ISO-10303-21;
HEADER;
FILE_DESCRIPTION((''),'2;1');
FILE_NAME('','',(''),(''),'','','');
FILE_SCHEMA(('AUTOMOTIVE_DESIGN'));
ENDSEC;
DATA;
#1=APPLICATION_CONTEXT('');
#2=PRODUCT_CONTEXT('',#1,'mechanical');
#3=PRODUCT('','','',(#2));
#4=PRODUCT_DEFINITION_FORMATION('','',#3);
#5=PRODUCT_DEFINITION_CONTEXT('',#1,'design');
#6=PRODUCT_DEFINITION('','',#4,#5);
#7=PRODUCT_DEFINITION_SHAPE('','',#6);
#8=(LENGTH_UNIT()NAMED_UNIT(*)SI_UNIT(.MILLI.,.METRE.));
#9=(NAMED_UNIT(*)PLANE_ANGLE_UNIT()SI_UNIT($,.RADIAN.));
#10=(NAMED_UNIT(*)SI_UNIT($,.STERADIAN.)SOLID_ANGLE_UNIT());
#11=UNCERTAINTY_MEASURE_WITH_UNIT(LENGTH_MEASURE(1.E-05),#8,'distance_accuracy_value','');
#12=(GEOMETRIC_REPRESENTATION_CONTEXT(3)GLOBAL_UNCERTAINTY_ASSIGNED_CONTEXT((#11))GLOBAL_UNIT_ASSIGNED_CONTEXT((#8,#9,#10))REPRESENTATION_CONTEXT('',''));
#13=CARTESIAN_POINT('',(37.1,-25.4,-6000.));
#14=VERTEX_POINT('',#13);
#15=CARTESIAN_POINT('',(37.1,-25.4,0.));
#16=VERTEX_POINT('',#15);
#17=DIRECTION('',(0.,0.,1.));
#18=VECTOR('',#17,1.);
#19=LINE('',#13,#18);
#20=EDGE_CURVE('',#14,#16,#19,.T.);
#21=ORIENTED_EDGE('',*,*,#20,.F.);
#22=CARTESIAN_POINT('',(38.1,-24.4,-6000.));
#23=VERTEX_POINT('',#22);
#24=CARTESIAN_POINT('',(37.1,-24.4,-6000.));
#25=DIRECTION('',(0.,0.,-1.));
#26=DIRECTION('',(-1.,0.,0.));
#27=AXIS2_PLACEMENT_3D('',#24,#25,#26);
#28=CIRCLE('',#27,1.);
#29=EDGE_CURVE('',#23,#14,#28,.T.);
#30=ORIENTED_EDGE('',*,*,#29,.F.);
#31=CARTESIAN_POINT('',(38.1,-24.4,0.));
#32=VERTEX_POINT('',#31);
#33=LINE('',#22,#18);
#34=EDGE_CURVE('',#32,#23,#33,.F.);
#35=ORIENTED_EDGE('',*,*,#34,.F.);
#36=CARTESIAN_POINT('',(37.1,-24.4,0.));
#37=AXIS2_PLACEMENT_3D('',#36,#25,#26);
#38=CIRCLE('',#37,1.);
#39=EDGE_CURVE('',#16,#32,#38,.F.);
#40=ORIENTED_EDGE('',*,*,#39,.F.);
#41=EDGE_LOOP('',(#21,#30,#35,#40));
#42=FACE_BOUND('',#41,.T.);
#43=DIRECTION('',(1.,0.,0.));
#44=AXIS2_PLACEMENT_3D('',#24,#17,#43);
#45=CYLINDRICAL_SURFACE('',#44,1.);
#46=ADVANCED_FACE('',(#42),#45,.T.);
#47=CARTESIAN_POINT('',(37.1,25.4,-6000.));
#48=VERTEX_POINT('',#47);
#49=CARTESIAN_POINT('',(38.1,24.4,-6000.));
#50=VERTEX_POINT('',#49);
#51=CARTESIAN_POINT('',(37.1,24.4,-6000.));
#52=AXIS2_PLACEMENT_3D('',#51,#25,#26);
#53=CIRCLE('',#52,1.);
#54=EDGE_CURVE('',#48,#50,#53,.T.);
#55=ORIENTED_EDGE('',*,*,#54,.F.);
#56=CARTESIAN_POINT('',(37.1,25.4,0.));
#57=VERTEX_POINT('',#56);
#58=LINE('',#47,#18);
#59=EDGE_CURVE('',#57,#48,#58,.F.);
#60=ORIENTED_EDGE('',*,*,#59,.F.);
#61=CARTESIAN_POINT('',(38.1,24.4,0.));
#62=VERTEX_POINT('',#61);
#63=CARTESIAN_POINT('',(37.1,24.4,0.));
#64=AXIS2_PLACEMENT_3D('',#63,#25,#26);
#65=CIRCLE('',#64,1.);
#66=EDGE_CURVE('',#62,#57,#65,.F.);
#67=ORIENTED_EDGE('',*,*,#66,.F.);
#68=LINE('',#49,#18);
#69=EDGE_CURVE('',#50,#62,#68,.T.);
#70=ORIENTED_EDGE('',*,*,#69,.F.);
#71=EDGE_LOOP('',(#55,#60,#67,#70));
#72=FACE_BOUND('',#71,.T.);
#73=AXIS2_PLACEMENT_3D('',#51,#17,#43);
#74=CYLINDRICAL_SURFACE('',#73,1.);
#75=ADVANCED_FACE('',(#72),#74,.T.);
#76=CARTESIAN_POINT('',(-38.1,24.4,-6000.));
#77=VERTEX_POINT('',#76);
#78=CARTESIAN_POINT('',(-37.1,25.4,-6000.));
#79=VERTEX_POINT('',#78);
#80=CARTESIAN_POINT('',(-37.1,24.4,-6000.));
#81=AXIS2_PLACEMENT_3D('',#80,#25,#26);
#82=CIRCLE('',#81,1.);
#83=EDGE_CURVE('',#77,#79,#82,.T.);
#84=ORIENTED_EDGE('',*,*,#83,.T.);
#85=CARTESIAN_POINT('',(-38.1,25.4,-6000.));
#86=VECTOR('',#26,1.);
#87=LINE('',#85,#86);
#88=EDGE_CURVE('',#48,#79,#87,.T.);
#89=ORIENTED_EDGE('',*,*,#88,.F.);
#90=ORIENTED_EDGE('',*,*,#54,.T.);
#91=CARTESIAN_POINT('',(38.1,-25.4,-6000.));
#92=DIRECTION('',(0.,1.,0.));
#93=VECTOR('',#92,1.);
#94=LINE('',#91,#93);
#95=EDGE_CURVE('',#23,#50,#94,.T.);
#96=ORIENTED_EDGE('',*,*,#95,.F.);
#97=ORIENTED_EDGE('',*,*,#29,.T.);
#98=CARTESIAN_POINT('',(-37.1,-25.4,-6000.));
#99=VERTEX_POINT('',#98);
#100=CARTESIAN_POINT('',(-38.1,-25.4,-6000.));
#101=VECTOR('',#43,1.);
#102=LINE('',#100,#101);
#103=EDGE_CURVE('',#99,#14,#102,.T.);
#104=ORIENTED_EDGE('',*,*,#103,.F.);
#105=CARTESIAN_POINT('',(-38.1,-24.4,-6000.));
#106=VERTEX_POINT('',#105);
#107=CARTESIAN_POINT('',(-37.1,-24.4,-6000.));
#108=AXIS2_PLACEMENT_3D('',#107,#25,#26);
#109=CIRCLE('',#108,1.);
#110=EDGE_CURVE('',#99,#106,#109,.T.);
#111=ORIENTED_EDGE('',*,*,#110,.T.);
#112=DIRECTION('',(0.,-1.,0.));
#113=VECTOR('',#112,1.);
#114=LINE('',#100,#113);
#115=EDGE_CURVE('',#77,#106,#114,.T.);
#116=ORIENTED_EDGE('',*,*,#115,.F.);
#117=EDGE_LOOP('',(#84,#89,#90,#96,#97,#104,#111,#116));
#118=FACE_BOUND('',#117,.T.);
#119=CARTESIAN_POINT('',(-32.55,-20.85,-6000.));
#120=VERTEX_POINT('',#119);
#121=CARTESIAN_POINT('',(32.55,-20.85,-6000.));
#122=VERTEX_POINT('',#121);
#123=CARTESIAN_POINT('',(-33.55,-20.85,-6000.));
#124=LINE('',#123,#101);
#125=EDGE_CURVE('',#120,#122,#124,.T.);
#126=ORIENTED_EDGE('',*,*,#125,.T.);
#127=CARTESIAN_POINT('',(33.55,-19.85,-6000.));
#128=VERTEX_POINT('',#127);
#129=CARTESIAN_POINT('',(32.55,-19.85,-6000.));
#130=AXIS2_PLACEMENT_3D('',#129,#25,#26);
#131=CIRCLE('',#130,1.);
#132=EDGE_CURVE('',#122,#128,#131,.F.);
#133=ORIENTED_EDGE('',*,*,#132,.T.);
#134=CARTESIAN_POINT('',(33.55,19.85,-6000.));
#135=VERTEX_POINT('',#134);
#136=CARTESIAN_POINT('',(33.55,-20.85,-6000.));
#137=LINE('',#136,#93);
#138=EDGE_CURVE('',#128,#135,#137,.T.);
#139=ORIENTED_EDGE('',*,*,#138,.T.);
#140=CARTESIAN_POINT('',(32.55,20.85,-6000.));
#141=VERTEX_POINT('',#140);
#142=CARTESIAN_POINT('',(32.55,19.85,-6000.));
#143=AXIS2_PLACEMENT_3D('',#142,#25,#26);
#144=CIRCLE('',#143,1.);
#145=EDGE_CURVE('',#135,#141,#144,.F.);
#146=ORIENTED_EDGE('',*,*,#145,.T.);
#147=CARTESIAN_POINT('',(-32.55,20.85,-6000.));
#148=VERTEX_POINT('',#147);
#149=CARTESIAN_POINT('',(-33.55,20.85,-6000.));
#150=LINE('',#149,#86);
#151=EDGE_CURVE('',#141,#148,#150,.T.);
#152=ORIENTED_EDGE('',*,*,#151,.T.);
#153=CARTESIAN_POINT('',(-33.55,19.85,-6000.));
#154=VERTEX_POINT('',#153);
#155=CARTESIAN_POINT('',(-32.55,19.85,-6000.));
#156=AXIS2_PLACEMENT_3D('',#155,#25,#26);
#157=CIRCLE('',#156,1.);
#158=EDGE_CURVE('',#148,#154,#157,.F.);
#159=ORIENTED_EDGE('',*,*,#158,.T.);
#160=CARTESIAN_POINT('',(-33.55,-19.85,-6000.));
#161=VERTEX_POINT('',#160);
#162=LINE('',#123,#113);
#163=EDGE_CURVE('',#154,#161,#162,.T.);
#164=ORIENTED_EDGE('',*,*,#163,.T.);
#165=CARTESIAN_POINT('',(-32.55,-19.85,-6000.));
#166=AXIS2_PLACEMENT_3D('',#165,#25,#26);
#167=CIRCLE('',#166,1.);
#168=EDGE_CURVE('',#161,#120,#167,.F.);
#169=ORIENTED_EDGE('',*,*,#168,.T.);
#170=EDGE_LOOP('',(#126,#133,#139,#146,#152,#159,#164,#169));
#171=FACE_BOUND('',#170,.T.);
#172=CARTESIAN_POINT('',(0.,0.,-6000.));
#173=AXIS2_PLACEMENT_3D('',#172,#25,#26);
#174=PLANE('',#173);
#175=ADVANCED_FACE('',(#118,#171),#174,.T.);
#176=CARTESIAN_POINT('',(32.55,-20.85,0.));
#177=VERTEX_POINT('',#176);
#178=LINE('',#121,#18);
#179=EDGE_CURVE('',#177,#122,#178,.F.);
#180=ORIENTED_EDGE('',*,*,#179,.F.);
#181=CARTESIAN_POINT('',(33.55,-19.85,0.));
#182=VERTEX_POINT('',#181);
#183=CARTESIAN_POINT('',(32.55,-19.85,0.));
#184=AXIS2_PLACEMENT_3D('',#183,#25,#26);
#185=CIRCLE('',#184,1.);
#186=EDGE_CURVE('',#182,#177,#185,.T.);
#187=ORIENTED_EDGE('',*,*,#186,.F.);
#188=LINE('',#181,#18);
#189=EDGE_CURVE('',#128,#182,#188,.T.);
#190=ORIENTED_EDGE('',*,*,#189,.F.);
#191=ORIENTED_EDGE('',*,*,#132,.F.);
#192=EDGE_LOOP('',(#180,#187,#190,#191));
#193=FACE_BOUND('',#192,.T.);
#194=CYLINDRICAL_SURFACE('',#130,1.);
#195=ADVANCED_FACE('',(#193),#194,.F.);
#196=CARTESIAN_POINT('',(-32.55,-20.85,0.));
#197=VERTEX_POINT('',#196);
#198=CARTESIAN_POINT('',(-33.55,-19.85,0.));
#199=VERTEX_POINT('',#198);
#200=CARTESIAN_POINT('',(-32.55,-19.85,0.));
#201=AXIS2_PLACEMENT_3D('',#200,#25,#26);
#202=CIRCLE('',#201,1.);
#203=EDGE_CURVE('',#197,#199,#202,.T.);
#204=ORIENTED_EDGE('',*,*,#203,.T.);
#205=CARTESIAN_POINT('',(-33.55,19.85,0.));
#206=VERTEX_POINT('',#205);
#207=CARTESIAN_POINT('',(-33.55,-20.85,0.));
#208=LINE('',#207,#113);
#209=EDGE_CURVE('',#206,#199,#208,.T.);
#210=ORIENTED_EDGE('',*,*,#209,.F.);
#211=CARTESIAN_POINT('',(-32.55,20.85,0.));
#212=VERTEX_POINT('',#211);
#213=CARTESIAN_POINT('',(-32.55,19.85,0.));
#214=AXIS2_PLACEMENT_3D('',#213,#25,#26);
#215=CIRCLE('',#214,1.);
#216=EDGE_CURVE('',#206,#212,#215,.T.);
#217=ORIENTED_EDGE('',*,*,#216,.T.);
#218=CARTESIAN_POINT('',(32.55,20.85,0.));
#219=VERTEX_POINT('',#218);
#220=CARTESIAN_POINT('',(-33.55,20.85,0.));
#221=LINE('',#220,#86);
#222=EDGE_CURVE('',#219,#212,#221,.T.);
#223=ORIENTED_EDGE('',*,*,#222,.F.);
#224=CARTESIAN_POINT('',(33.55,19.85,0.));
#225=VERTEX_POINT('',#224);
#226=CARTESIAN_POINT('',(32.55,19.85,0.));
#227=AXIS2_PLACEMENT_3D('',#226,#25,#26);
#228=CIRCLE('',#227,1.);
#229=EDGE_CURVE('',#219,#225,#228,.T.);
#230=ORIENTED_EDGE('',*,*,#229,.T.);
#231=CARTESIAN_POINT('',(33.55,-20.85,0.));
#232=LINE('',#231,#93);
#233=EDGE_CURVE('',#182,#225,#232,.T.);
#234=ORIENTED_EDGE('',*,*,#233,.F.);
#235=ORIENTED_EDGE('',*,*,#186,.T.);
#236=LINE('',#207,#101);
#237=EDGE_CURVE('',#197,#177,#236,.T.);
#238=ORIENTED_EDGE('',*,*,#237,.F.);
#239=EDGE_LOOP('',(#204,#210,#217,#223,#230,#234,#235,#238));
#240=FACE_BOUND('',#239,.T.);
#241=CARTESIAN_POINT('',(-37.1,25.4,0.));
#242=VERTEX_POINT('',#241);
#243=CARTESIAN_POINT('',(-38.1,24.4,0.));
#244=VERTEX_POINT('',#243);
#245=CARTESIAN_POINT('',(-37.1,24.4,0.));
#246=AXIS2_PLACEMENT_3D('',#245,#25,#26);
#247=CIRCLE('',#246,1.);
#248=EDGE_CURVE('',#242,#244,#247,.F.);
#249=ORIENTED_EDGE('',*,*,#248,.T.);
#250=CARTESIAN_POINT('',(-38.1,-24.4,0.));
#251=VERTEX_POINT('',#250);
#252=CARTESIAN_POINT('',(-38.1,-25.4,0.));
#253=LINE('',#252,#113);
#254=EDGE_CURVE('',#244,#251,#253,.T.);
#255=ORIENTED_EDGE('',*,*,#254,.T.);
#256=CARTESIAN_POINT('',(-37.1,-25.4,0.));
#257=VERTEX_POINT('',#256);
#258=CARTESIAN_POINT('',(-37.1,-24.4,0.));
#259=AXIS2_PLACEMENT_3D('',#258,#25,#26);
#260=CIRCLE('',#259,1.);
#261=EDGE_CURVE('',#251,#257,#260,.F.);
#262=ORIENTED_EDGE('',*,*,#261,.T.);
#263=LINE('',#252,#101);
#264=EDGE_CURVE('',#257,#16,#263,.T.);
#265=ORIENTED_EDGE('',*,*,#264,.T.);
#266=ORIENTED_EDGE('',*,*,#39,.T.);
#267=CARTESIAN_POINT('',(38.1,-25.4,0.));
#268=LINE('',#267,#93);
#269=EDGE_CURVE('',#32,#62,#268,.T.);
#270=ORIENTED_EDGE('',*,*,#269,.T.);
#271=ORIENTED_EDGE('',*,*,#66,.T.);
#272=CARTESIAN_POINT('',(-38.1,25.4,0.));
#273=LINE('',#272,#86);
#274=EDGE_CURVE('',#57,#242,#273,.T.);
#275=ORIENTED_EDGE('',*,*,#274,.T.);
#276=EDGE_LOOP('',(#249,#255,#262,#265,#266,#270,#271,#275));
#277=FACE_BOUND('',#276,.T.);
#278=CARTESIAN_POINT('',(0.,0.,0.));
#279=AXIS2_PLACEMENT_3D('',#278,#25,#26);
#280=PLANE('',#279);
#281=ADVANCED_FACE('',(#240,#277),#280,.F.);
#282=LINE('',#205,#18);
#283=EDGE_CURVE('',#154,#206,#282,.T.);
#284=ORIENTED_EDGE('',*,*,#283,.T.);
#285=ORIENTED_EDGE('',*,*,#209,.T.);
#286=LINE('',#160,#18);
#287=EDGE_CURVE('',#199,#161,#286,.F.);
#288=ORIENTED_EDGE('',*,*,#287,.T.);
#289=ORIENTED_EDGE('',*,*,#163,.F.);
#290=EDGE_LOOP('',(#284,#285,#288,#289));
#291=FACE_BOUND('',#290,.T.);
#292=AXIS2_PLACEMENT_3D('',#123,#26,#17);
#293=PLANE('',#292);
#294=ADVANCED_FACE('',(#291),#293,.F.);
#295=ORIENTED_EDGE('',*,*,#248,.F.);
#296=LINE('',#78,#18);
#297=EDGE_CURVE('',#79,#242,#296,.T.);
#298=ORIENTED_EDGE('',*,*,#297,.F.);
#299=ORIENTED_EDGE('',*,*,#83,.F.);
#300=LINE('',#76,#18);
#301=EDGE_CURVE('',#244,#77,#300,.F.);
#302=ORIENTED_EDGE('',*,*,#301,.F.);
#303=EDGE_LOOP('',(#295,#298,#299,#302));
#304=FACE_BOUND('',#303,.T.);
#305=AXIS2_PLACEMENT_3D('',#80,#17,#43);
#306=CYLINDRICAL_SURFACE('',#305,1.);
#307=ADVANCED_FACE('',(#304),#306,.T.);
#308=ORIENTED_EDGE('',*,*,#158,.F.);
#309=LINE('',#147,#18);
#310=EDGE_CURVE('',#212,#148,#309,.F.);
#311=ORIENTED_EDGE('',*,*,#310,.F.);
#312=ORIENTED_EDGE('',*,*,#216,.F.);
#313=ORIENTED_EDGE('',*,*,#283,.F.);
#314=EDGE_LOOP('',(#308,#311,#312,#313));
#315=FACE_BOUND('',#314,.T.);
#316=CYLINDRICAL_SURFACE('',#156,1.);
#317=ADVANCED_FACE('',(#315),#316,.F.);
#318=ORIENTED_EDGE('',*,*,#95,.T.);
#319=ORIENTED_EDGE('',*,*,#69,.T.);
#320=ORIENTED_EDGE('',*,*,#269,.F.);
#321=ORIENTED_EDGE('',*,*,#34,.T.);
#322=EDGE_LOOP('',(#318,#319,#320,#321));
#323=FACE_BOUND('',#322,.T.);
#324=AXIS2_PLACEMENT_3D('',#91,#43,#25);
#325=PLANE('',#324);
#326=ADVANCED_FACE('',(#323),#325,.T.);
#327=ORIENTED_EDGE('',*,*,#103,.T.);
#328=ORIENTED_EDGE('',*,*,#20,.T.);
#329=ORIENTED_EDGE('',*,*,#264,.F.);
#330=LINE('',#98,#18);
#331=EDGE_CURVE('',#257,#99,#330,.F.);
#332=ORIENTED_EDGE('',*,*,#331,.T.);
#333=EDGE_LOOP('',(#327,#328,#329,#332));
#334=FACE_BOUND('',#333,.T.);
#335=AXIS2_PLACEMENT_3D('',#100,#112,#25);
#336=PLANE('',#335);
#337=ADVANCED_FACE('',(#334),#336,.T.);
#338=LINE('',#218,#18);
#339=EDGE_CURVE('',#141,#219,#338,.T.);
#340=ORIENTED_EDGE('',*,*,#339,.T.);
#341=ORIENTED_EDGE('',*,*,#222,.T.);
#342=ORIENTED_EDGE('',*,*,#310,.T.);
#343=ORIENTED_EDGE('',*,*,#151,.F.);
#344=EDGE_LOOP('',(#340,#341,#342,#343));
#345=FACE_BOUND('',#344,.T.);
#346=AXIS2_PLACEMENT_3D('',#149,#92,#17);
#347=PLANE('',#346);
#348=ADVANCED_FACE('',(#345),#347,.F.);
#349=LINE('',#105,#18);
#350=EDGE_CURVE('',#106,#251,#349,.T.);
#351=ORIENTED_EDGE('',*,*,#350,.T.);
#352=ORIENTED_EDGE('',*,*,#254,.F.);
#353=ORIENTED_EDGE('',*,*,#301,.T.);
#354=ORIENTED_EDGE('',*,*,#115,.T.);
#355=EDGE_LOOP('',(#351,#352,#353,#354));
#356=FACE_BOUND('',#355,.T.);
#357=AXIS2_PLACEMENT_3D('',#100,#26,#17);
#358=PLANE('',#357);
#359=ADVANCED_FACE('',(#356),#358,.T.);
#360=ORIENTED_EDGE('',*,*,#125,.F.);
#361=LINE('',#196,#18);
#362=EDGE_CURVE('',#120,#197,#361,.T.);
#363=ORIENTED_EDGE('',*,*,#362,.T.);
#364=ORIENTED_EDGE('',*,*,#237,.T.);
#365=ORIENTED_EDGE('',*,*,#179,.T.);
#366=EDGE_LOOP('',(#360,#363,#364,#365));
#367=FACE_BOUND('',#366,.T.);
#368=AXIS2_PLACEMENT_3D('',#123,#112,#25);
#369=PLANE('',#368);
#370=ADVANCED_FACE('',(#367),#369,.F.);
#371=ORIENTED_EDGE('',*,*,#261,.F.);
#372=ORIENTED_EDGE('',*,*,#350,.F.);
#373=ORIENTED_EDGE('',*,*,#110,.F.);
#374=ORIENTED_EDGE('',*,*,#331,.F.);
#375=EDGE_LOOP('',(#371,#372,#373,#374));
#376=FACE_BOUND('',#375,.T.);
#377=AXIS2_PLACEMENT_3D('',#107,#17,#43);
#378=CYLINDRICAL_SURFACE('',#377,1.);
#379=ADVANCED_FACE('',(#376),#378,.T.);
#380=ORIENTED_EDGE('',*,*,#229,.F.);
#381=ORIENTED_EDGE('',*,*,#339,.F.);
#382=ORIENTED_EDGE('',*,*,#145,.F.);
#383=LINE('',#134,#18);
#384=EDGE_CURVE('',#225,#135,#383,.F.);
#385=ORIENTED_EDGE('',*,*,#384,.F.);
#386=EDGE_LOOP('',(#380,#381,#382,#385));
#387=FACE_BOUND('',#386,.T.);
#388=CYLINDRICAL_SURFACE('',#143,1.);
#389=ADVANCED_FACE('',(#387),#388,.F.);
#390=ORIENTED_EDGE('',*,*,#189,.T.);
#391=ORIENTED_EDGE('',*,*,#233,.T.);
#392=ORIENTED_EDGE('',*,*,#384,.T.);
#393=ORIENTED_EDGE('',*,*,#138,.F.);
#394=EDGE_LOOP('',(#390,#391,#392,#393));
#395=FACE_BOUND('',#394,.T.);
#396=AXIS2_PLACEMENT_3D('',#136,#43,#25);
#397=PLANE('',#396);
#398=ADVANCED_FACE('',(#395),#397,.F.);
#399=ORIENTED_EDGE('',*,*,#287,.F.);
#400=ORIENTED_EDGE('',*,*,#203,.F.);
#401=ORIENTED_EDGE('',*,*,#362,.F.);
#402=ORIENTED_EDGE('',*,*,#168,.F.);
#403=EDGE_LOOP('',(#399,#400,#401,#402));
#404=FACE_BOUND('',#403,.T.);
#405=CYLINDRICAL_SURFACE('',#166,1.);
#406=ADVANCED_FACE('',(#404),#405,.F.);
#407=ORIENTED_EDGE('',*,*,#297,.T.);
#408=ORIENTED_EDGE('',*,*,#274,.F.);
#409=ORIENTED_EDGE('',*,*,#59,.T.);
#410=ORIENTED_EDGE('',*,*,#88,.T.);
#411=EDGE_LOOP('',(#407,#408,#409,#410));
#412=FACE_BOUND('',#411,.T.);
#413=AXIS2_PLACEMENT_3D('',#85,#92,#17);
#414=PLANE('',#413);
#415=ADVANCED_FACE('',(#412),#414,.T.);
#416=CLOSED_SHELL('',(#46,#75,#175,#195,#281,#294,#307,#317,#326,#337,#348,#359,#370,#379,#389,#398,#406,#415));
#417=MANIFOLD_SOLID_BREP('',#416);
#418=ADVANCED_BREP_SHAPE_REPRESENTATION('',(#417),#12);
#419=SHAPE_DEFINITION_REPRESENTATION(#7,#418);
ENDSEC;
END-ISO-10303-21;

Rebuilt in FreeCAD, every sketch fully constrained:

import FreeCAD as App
import Part
import Sketcher

V = App.Vector


def edges_at(feature, points):
    """Names of the edges that pass closest to the given points."""
    edges = feature.Shape.Edges
    near = lambda p: min(range(len(edges)), key=lambda i: edges[i].distToShape(Part.Vertex(*p))[0])
    return sorted({f"Edge{near(p) + 1}" for p in points})


def add_polygon(sketch, points):
    """Adds a closed chain of lines whose ends are joined by coincident constraints."""
    first, n = sketch.GeometryCount, len(points)
    for a, b in zip(points, points[1:] + points[:1]):
        sketch.addGeometry(Part.LineSegment(App.Vector(*a, 0), App.Vector(*b, 0)), False)
    for i in range(n):
        sketch.addConstraint(Sketcher.Constraint("Coincident", first + i, 2, first + (i + 1) % n, 1))

doc = App.newDocument("Part")
params = doc.addObject("Spreadsheet::Sheet", "Params")
for row, (alias, value) in enumerate([
    ("sketch1_width", "76.2 mm"),
    ("sketch1_width2", "67.1 mm"),
    ("sketch1_height", "50.8 mm"),
    ("sketch1_height2", "41.7 mm"),
    ("pad1_length", "6000 mm"),
    ("fillet_radius", "1 mm"),
], start=1):
    params.set(f"A{row}", alias)
    params.set(f"B{row}", "=" + value)
    params.setAlias(f"B{row}", alias)

body = doc.addObject("PartDesign::Body", "Body")

sketch1 = body.newObject("Sketcher::SketchObject", "Sketch")
sketch1.AttachmentSupport = (doc.getObject("XY_Plane"), [""])
sketch1.MapMode = "FlatFace"
add_polygon(sketch1, [(-38, 25), (-38, -25), (38, -25), (38, 25)])
add_polygon(sketch1, [(34, -21), (-34, -21), (-34, 21), (34, 21)])
sketch1.addConstraint([
    Sketcher.Constraint("Vertical", 0),
    Sketcher.Constraint("Horizontal", 1),
    Sketcher.Constraint("Vertical", 2),
    Sketcher.Constraint("Horizontal", 3),
    Sketcher.Constraint("Horizontal", 4),
    Sketcher.Constraint("Vertical", 5),
    Sketcher.Constraint("Horizontal", 6),
    Sketcher.Constraint("Vertical", 7),
    Sketcher.Constraint("Symmetric", 0, 2, 2, 2, -1, 1),
    Sketcher.Constraint("Symmetric", 4, 2, 6, 2, -1, 1),
    Sketcher.Constraint("DistanceX", 1, 1, 1, 2, 76.2),
    Sketcher.Constraint("DistanceX", 4, 2, 4, 1, 67.1),
    Sketcher.Constraint("DistanceY", 0, 2, 0, 1, 50.8),
    Sketcher.Constraint("DistanceY", 5, 1, 5, 2, 41.7),
])
sketch1.setExpression("Constraints[18]", "Params.sketch1_width")
sketch1.setExpression("Constraints[19]", "Params.sketch1_width2")
sketch1.setExpression("Constraints[20]", "Params.sketch1_height")
sketch1.setExpression("Constraints[21]", "Params.sketch1_height2")
pad1 = body.newObject("PartDesign::Pad", "Pad")
pad1.Profile = sketch1
pad1.setExpression("Length", "Params.pad1_length")
pad1.Reversed = True
doc.recompute()

fillet = body.newObject("PartDesign::Fillet", "Fillet")
fillet.Base = (pad1, edges_at(pad1, [
    (33.55, -20.85, -3000),
    (-33.55, -20.85, -3000),
    (-33.55, 20.85, -3000),
    (33.55, 20.85, -3000),
    (38.1, -25.4, -3000),
    (-38.1, -25.4, -3000),
    (-38.1, 25.4, -3000),
    (38.1, 25.4, -3000),
]))
fillet.setExpression("Radius", "Params.fillet_radius")

doc.recompute()
